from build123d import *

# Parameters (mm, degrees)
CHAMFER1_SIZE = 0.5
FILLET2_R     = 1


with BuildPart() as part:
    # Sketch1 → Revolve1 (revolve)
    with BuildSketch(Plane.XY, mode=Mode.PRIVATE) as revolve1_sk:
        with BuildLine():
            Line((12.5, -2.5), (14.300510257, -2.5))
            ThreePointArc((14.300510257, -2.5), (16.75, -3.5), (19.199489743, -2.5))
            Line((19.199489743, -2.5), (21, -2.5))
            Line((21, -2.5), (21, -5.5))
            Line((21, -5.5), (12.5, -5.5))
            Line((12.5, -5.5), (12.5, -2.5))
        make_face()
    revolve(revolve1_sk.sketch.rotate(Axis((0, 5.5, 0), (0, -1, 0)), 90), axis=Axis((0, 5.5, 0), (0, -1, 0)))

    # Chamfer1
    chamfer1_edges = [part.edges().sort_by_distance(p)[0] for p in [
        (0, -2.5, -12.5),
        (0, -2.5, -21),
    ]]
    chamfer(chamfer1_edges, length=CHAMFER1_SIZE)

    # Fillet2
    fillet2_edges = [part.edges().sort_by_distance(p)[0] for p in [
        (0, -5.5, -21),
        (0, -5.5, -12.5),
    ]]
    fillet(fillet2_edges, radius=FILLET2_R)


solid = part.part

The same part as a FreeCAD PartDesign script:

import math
import FreeCAD as App
import Part
import Sketcher

V = App.Vector
Q = App.Units.Quantity


def edges_at(feature, points):
    """Names of the edges that pass closest to the given points."""
    edges = feature.Shape.Edges
    near = lambda p: min(range(len(edges)), key=lambda i: edges[i].distToShape(Part.Vertex(*p))[0])
    return sorted({f"Edge{near(p) + 1}" for p in points})

doc = App.newDocument("Part")
body = doc.addObject("PartDesign::Body", "Body")

# Sketch on XY plane
sketch1 = body.newObject("Sketcher::SketchObject", "Sketch")
sketch1.AttachmentSupport = (doc.getObject("XY_Plane"), [""])
sketch1.MapMode = "FlatFace"
sketch1.addGeometry([
    Part.LineSegment(V(14.3, -2.5, 0), V(12.5, -2.5, 0)),  # 0
    Part.LineSegment(V(12.5, -2.5, 0), V(12.5, -5.5, 0)),  # 1
    Part.LineSegment(V(12.5, -5.5, 0), V(21, -5.5, 0)),  # 2
    Part.LineSegment(V(21, -5.5, 0), V(21, -2.5, 0)),  # 3
    Part.LineSegment(V(21, -2.5, 0), V(19.2, -2.5, 0)),  # 4
    Part.ArcOfCircle(Part.Circle(V(16.8, 0, 0), V(0, 0, 1), 3.5), math.radians(-134), math.radians(-46)),  # 5
], False)
sketch1.addConstraint([
    Sketcher.Constraint("Coincident", 0, 2, 1, 1),
    Sketcher.Constraint("Coincident", 1, 2, 2, 1),
    Sketcher.Constraint("Coincident", 2, 2, 3, 1),
    Sketcher.Constraint("Coincident", 3, 2, 4, 1),
    Sketcher.Constraint("Coincident", 4, 2, 5, 2),
    Sketcher.Constraint("Coincident", 5, 1, 0, 1),
    Sketcher.Constraint("Horizontal", 0),
    Sketcher.Constraint("Vertical", 1),
    Sketcher.Constraint("Horizontal", 2),
    Sketcher.Constraint("Vertical", 3),
    Sketcher.Constraint("Horizontal", 4),
    Sketcher.Constraint("PointOnObject", 5, 3, -1),
    Sketcher.Constraint("Horizontal", 0, 2, 3, 2),
    Sketcher.Constraint("Equal", 0, 4),
    Sketcher.Constraint("Radius", 5, Q("3.5 mm")),
    Sketcher.Constraint("DistanceY", 1, 2, 1, 1, Q("3 mm")),
    Sketcher.Constraint("DistanceX", 2, 1, 2, 2, Q("8.5 mm")),
    Sketcher.Constraint("DistanceX", -1, 1, 2, 2, Q("21 mm")),
    Sketcher.Constraint("DistanceY", 0, 2, -1, 1, Q("2.5 mm")),
])
revolution = body.newObject("PartDesign::Revolution", "Revolution")
revolution.Profile = sketch1
revolution.ReferenceAxis = (sketch1, ["V_Axis"])
revolution.Angle = 360
doc.recompute()

chamfer = body.newObject("PartDesign::Chamfer", "Chamfer")
chamfer.Base = (revolution, edges_at(revolution, [(0, -2.5, -12.5), (0, -2.5, -21)]))
chamfer.Size = 0.5
doc.recompute()

fillet = body.newObject("PartDesign::Fillet", "Fillet")
fillet.Base = (chamfer, edges_at(chamfer, [(0, -5.5, -21), (0, -5.5, -12.5)]))
fillet.Radius = 1

doc.recompute()
